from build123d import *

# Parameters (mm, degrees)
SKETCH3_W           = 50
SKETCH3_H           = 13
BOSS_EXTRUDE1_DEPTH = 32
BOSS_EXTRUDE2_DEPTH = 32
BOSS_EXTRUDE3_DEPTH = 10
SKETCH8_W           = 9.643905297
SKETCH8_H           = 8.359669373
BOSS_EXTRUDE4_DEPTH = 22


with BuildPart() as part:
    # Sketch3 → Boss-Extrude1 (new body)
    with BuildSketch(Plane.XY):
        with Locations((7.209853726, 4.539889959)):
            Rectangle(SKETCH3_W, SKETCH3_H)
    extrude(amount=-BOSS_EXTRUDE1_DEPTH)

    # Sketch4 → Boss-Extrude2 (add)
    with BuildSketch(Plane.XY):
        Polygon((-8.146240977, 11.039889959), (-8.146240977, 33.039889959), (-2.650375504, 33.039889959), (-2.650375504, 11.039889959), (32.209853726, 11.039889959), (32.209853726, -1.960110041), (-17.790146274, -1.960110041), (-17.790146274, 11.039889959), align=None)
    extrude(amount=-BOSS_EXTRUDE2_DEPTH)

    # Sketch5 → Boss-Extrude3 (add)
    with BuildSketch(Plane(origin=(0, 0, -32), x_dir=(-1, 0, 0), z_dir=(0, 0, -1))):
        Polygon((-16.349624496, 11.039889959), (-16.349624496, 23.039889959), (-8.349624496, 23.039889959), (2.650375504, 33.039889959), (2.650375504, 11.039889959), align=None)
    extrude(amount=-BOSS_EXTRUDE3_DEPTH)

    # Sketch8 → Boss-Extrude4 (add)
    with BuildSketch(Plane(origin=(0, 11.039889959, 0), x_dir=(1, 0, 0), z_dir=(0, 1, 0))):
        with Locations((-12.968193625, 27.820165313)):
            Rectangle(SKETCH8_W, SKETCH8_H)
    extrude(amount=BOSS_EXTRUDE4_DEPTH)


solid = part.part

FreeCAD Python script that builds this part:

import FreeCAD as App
import Part
import Sketcher

doc = App.newDocument("Part")
body = doc.addObject("PartDesign::Body", "Body")

# Sketch on XY plane
sketch1 = doc.addObject("Sketcher::SketchObject", "Sketch")
body.addObject(sketch1)
sketch1.AttachmentSupport = (doc.XY_Plane, [""])
sketch1.MapMode = "FlatFace"
sketch1.addGeometry([
    Part.LineSegment(App.Vector(-18, 11, 0), App.Vector(-18, -2, 0)),
    Part.LineSegment(App.Vector(-18, -2, 0), App.Vector(32, -2, 0)),
    Part.LineSegment(App.Vector(32, -2, 0), App.Vector(32, 11, 0)),
    Part.LineSegment(App.Vector(32, 11, 0), App.Vector(-18, 11, 0)),
], False)
sketch1.addConstraint([
    Sketcher.Constraint("Coincident", 0, 2, 1, 1),
    Sketcher.Constraint("Coincident", 1, 2, 2, 1),
    Sketcher.Constraint("Coincident", 2, 2, 3, 1),
    Sketcher.Constraint("Coincident", 3, 2, 0, 1),
    Sketcher.Constraint("Vertical", 0),
    Sketcher.Constraint("Horizontal", 1),
    Sketcher.Constraint("Vertical", 2),
    Sketcher.Constraint("Horizontal", 3),
    Sketcher.Constraint("DistanceX", 1, 1, 1, 2, 50.0),
    Sketcher.Constraint("DistanceY", 0, 2, 0, 1, 13.0),
    Sketcher.Constraint("DistanceY", 0, 2, -1, 1, 1.96011),
    Sketcher.Constraint("DistanceX", 0, 2, -1, 1, 17.790146),
])
pad1 = doc.addObject("PartDesign::Pad", "Pad")
body.addObject(pad1)
pad1.Profile = sketch1
pad1.Length = 32
pad1.Reversed = True

# Sketch on XY plane
sketch2 = doc.addObject("Sketcher::SketchObject", "Sketch001")
body.addObject(sketch2)
sketch2.AttachmentSupport = (doc.XY_Plane, [""])
sketch2.MapMode = "FlatFace"
sketch2.addGeometry([
    Part.LineSegment(App.Vector(-8, 33, 0), App.Vector(-8, 11, 0)),  # 0
    Part.LineSegment(App.Vector(-8, 11, 0), App.Vector(-18, 11, 0)),  # 1
    Part.LineSegment(App.Vector(-18, 11, 0), App.Vector(-18, -2, 0)),  # 2
    Part.LineSegment(App.Vector(-18, -2, 0), App.Vector(32, -2, 0)),  # 3
    Part.LineSegment(App.Vector(32, -2, 0), App.Vector(32, 11, 0)),  # 4
    Part.LineSegment(App.Vector(32, 11, 0), App.Vector(-3, 11, 0)),  # 5
    Part.LineSegment(App.Vector(-3, 11, 0), App.Vector(-3, 33, 0)),  # 6
    Part.LineSegment(App.Vector(-3, 33, 0), App.Vector(-8, 33, 0)),  # 7
], False)
sketch2.addConstraint([
    Sketcher.Constraint("Coincident", 0, 2, 1, 1),
    Sketcher.Constraint("Coincident", 1, 2, 2, 1),
    Sketcher.Constraint("Coincident", 2, 2, 3, 1),
    Sketcher.Constraint("Coincident", 3, 2, 4, 1),
    Sketcher.Constraint("Coincident", 4, 2, 5, 1),
    Sketcher.Constraint("Coincident", 5, 2, 6, 1),
    Sketcher.Constraint("Coincident", 6, 2, 7, 1),
    Sketcher.Constraint("Coincident", 7, 2, 0, 1),
    Sketcher.Constraint("Vertical", 0),
    Sketcher.Constraint("Horizontal", 1),
    Sketcher.Constraint("Vertical", 2),
    Sketcher.Constraint("Horizontal", 3),
    Sketcher.Constraint("Vertical", 4),
    Sketcher.Constraint("Horizontal", 5),
    Sketcher.Constraint("Vertical", 6),
    Sketcher.Constraint("Horizontal", 7),
    Sketcher.Constraint("Horizontal", 1, 2, 4, 2),
    Sketcher.Constraint("DistanceX", 3, 1, 3, 2, 50.0),
    Sketcher.Constraint("DistanceY", 0, 2, 0, 1, 22.0),
    Sketcher.Constraint("DistanceY", 2, 2, 2, 1, 13.0),
    Sketcher.Constraint("DistanceX", 5, 2, 5, 1, 34.860229),
    Sketcher.Constraint("DistanceX", 1, 2, 1, 1, 9.643905),
    Sketcher.Constraint("DistanceX", 0, 2, -1, 1, 8.146241),
    Sketcher.Constraint("DistanceY", -1, 1, 0, 2, 11.03989),
])
pad2 = doc.addObject("PartDesign::Pad", "Pad001")
body.addObject(pad2)
pad2.Profile = sketch2
pad2.Length = 32
pad2.Reversed = True

# Sketch on XY plane
sketch3 = doc.addObject("Sketcher::SketchObject", "Sketch002")
body.addObject(sketch3)
sketch3.AttachmentSupport = (doc.XY_Plane, [""])
sketch3.MapMode = "FlatFace"
sketch3.AttachmentOffset = App.Placement(App.Vector(0, 0, -32), App.Rotation())
sketch3.addGeometry([
    Part.LineSegment(App.Vector(16, 23, 0), App.Vector(16, 11, 0)),  # 0
    Part.LineSegment(App.Vector(16, 11, 0), App.Vector(-3, 11, 0)),  # 1
    Part.LineSegment(App.Vector(-3, 11, 0), App.Vector(-3, 33, 0)),  # 2
    Part.LineSegment(App.Vector(-3, 33, 0), App.Vector(8, 23, 0)),  # 3
    Part.LineSegment(App.Vector(8, 23, 0), App.Vector(16, 23, 0)),  # 4
], False)
sketch3.addConstraint([
    Sketcher.Constraint("Coincident", 0, 2, 1, 1),
    Sketcher.Constraint("Coincident", 1, 2, 2, 1),
    Sketcher.Constraint("Coincident", 2, 2, 3, 1),
    Sketcher.Constraint("Coincident", 3, 2, 4, 1),
    Sketcher.Constraint("Coincident", 4, 2, 0, 1),
    Sketcher.Constraint("Vertical", 0),
    Sketcher.Constraint("Horizontal", 1),
    Sketcher.Constraint("Vertical", 2),
    Sketcher.Constraint("Horizontal", 4),
    Sketcher.Constraint("DistanceX", 1, 2, 1, 1, 19.0),
    Sketcher.Constraint("DistanceX", 4, 1, 4, 2, 8.0),
    Sketcher.Constraint("DistanceY", 0, 2, 0, 1, 12.0),
    Sketcher.Constraint("DistanceY", 2, 1, 2, 2, 22.0),
    Sketcher.Constraint("DistanceY", -1, 1, 0, 2, 11.03989),
    Sketcher.Constraint("DistanceX", -1, 1, 0, 2, 16.349624),
])
pad3 = doc.addObject("PartDesign::Pad", "Pad002")
body.addObject(pad3)
pad3.Profile = sketch3
pad3.Length = 10

# Sketch on XZ plane
sketch4 = doc.addObject("Sketcher::SketchObject", "Sketch003")
body.addObject(sketch4)
sketch4.AttachmentSupport = (doc.XZ_Plane, [""])
sketch4.MapMode = "FlatFace"
sketch4.AttachmentOffset = App.Placement(App.Vector(0, 0, -11.03989), App.Rotation())
sketch4.addGeometry([
    Part.LineSegment(App.Vector(-18, -32, 0), App.Vector(-18, -24, 0)),
    Part.LineSegment(App.Vector(-18, -24, 0), App.Vector(-8, -24, 0)),
    Part.LineSegment(App.Vector(-8, -24, 0), App.Vector(-8, -32, 0)),
    Part.LineSegment(App.Vector(-8, -32, 0), App.Vector(-18, -32, 0)),
], False)
sketch4.addConstraint([
    Sketcher.Constraint("Coincident", 0, 2, 1, 1),
    Sketcher.Constraint("Coincident", 1, 2, 2, 1),
    Sketcher.Constraint("Coincident", 2, 2, 3, 1),
    Sketcher.Constraint("Coincident", 3, 2, 0, 1),
    Sketcher.Constraint("Vertical", 0),
    Sketcher.Constraint("Horizontal", 1),
    Sketcher.Constraint("Vertical", 2),
    Sketcher.Constraint("Horizontal", 3),
    Sketcher.Constraint("DistanceY", 2, 2, -1, 1, 32.0),
    Sketcher.Constraint("DistanceY", 0, 1, 0, 2, 8.359669),
    Sketcher.Constraint("DistanceX", 1, 1, 1, 2, 9.643905),
    Sketcher.Constraint("DistanceX", 1, 2, -1, 1, 8.146241),
])
pad4 = doc.addObject("PartDesign::Pad", "Pad003")
body.addObject(pad4)
pad4.Profile = sketch4
pad4.Length = 22
pad4.Reversed = True

doc.recompute()
